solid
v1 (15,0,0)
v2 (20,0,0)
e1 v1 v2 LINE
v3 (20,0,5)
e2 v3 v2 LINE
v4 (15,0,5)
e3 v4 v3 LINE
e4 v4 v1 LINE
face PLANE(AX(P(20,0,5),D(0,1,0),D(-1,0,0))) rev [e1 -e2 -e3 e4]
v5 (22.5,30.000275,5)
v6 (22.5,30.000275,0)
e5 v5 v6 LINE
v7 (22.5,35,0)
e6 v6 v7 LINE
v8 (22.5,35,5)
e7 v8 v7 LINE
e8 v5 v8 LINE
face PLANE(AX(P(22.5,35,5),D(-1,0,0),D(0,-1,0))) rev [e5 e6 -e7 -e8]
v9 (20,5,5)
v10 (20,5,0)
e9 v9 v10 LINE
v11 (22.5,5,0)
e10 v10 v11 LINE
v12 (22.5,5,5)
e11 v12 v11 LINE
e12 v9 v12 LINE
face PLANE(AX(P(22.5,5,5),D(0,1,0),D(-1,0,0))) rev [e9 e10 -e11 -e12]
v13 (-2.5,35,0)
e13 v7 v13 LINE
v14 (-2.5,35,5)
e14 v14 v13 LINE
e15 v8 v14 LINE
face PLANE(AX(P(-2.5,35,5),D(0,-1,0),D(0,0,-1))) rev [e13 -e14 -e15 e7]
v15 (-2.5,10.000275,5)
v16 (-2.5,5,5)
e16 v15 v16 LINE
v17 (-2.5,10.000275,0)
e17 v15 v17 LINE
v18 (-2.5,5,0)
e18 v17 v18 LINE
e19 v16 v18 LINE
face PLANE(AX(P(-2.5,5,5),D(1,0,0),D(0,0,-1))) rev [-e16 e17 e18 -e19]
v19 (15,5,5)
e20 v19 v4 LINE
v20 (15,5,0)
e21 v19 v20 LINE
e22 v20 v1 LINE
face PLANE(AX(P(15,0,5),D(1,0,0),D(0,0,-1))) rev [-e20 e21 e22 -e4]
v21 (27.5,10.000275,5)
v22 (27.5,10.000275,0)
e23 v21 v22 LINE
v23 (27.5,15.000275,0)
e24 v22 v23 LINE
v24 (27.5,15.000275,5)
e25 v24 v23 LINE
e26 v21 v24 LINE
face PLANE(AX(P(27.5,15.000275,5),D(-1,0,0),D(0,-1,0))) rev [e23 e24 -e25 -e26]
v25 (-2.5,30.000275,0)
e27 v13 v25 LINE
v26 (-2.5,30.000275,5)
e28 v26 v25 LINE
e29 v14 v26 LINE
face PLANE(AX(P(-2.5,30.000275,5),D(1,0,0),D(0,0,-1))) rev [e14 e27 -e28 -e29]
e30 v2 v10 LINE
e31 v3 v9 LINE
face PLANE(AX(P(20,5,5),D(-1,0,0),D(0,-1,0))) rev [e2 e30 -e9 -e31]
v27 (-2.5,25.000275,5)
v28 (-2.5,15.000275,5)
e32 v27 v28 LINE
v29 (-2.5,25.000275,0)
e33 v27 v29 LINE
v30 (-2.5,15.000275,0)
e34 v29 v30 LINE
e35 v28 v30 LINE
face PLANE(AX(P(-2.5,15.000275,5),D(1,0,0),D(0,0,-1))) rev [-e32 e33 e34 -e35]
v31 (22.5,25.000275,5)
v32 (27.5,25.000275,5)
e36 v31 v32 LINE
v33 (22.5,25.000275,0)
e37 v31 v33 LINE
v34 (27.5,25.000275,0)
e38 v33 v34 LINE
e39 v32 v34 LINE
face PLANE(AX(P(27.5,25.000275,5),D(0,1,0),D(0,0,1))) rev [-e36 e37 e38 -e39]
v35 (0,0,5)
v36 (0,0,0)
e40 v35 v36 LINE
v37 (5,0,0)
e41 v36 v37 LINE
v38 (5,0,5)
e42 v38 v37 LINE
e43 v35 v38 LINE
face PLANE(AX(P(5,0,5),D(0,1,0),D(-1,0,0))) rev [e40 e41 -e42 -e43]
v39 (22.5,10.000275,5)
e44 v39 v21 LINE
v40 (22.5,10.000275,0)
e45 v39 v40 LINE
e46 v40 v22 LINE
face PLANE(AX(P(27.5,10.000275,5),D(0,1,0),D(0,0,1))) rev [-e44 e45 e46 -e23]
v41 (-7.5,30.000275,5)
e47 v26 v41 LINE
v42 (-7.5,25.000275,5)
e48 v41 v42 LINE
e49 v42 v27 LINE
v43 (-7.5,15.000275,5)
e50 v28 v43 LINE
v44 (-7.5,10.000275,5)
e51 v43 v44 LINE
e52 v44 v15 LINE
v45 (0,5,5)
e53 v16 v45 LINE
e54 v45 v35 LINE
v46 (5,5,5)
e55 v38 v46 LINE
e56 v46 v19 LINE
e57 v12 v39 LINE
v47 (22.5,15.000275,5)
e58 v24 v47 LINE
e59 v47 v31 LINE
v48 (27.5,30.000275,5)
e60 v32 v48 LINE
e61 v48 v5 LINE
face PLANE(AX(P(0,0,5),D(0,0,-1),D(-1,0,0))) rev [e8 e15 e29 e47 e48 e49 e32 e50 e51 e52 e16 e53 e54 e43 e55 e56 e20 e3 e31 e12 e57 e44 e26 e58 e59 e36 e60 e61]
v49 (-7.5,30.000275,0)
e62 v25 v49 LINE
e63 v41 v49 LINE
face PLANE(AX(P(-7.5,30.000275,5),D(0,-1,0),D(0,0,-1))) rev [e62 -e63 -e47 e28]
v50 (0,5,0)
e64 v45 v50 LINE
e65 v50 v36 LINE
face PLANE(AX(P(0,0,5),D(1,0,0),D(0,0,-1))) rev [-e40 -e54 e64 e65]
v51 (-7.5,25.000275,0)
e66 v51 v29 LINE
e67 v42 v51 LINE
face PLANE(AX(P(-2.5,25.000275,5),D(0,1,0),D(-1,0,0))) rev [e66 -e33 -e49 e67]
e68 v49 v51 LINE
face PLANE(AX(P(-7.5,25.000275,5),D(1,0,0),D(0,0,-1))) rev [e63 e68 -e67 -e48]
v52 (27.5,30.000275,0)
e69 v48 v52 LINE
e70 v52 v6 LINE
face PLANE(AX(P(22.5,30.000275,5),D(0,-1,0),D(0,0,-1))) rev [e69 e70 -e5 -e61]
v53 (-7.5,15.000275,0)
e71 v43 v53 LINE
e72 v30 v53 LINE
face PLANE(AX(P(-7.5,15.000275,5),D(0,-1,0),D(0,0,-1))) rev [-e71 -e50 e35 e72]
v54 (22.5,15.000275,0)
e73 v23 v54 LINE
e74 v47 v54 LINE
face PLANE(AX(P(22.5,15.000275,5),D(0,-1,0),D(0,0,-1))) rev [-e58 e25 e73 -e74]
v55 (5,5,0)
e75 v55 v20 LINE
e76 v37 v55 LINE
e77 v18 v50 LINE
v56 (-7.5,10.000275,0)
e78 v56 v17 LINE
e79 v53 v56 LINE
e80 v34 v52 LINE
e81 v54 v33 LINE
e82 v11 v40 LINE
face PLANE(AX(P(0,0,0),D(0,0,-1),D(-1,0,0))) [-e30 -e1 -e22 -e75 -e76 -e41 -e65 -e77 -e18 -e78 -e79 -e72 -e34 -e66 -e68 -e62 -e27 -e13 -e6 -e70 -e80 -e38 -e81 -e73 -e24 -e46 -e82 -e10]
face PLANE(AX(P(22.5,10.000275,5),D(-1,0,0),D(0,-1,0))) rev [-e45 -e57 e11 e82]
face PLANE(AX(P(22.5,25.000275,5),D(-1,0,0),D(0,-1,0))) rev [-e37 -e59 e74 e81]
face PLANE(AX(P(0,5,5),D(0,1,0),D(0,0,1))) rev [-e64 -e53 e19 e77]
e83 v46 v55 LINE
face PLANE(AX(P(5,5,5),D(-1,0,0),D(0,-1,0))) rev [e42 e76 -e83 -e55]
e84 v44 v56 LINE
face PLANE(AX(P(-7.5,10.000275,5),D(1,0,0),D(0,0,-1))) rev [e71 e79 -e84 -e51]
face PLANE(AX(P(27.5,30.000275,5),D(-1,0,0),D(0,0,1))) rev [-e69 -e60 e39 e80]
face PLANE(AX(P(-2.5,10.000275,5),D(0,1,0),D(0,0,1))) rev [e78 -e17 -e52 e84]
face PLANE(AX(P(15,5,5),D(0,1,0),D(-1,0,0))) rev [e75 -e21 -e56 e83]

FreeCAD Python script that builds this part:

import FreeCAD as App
import Part
import Sketcher
Q = App.Units.Quantity


def add_polygon(sketch, points):
    """Adds a closed chain of lines whose ends are joined by coincident constraints."""
    first, n = sketch.GeometryCount, len(points)
    for a, b in zip(points, points[1:] + points[:1]):
        sketch.addGeometry(Part.LineSegment(App.Vector(*a, 0), App.Vector(*b, 0)), False)
    for i in range(n):
        sketch.addConstraint(Sketcher.Constraint("Coincident", first + i, 2, first + (i + 1) % n, 1))

doc = App.newDocument("Part")
body = doc.addObject("PartDesign::Body", "Body")

sketch1 = doc.addObject("Sketcher::SketchObject", "Sketch")
body.addObject(sketch1)
sketch1.AttachmentSupport = (doc.XY_Plane, [""])
sketch1.MapMode = "FlatFace"
add_polygon(sketch1, [(0, 5), (0, 0), (5, 0), (5, 5), (15, 5), (15, 0), (20, 0), (20, 5), (22.5, 5), (22.5, 10), (27.5, 10), (27.5, 15), (22.5, 15), (22.5, 25), (27.5, 25), (27.5, 30), (22.5, 30), (22.5, 35), (-2.5, 35), (-2.5, 30), (-7.5, 30), (-7.5, 25), (-2.5, 25), (-2.5, 15), (-7.5, 15), (-7.5, 10), (-2.5, 10), (-2.5, 5)])
sketch1.addConstraint([
    Sketcher.Constraint("Vertical", 0),
    Sketcher.Constraint("Horizontal", 1),
    Sketcher.Constraint("Vertical", 2),
    Sketcher.Constraint("Horizontal", 3),
    Sketcher.Constraint("Vertical", 4),
    Sketcher.Constraint("Horizontal", 5),
    Sketcher.Constraint("Vertical", 6),
    Sketcher.Constraint("Horizontal", 7),
    Sketcher.Constraint("Vertical", 8),
    Sketcher.Constraint("Horizontal", 9),
    Sketcher.Constraint("Vertical", 10),
    Sketcher.Constraint("Horizontal", 11),
    Sketcher.Constraint("Vertical", 12),
    Sketcher.Constraint("Horizontal", 13),
    Sketcher.Constraint("Vertical", 14),
    Sketcher.Constraint("Horizontal", 15),
    Sketcher.Constraint("Vertical", 16),
    Sketcher.Constraint("Horizontal", 17),
    Sketcher.Constraint("Vertical", 18),
    Sketcher.Constraint("Horizontal", 19),
    Sketcher.Constraint("Vertical", 20),
    Sketcher.Constraint("Horizontal", 21),
    Sketcher.Constraint("Vertical", 22),
    Sketcher.Constraint("Horizontal", 23),
    Sketcher.Constraint("Vertical", 24),
    Sketcher.Constraint("Horizontal", 25),
    Sketcher.Constraint("Vertical", 26),
    Sketcher.Constraint("Horizontal", 27),
    Sketcher.Constraint("Coincident", 0, 2, -1, 1),
    Sketcher.Constraint("PointOnObject", 4, 2, -1),
    Sketcher.Constraint("Horizontal", 3, 2, 6, 2),
    Sketcher.Constraint("Horizontal", 15, 2, 18, 2),
    Sketcher.Constraint("Horizontal", 13, 2, 20, 2),
    Sketcher.Constraint("Horizontal", 11, 2, 22, 2),
    Sketcher.Constraint("Horizontal", 9, 2, 24, 2),
    Sketcher.Constraint("Horizontal", 7, 2, 26, 2),
    Sketcher.Constraint("Vertical", 8, 2, 11, 2),
    Sketcher.Constraint("Vertical", 10, 2, 13, 2),
    Sketcher.Constraint("Vertical", 12, 2, 15, 2),
    Sketcher.Constraint("Vertical", 18, 2, 21, 2),
    Sketcher.Constraint("Vertical", 20, 2, 23, 2),
    Sketcher.Constraint("Vertical", 22, 2, 25, 2),
    Sketcher.Constraint("Equal", 1, 5),
    Sketcher.Constraint("Equal", 5, 9),
    Sketcher.Constraint("Equal", 15, 19),
    Sketcher.Constraint("Equal", 7, 27),
    Sketcher.Constraint("Equal", 25, 0),
    Sketcher.Constraint("Equal", 6, 10),
    Sketcher.Constraint("Equal", 3, 12),
    Sketcher.Constraint("Equal", 10, 14),
    Sketcher.Constraint("DistanceX", 1, 1, 1, 2, Q("5 mm")),
    Sketcher.Constraint("DistanceX", 3, 1, 3, 2, Q("10 mm")),
    Sketcher.Constraint("DistanceX", 17, 2, 17, 1, Q("25 mm")),
    Sketcher.Constraint("DistanceY", -1, 1, 16, 2, Q("35 mm")),
    Sketcher.Constraint("DistanceY", 8, 1, 8, 2, Q("5.000275 mm")),
])
pad1 = doc.addObject("PartDesign::Pad", "Pad")
body.addObject(pad1)
pad1.Profile = sketch1
pad1.Length = 5

doc.recompute()
